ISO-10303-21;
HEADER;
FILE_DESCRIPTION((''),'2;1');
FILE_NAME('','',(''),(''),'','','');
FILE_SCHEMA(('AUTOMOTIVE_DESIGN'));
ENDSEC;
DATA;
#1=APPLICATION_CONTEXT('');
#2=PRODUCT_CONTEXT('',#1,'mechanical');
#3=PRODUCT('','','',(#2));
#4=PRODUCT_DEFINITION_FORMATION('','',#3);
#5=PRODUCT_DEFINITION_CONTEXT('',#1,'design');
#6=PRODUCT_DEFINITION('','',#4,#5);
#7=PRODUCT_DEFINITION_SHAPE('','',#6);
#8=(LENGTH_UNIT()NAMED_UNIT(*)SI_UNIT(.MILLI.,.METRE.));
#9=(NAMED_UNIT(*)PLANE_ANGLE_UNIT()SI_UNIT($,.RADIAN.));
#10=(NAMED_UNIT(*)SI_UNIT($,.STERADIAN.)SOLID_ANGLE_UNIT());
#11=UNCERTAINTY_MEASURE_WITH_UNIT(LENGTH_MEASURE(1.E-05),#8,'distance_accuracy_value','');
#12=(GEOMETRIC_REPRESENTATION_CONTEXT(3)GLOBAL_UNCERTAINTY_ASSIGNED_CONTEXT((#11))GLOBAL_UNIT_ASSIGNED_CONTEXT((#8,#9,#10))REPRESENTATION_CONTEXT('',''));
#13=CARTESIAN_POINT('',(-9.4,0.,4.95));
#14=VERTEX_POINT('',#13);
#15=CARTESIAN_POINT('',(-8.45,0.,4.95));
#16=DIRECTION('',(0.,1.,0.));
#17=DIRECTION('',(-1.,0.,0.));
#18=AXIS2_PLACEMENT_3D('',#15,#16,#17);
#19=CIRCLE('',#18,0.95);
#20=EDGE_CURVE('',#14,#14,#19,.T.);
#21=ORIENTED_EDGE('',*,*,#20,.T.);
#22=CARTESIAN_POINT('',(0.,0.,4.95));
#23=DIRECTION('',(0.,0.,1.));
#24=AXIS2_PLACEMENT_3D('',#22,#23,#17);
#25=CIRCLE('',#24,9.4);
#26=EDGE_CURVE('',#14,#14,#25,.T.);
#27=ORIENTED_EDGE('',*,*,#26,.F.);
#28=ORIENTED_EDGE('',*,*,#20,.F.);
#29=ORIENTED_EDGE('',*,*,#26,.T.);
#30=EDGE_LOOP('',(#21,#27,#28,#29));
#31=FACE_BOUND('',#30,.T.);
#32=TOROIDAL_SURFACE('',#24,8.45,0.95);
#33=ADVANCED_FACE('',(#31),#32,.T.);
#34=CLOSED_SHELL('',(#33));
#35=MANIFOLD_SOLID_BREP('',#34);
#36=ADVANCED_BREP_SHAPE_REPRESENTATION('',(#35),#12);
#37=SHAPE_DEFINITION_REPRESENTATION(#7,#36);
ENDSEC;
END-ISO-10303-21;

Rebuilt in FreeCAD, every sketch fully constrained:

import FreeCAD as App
import Part
import Sketcher
from FreeCAD import Vector
Q = App.Units.Quantity

doc = App.newDocument("Part")
body = doc.addObject("PartDesign::Body", "Body")

sketch1 = body.newObject("Sketcher::SketchObject", "Sketch")
sketch1.AttachmentSupport = (doc.getObject("XZ_Plane"), [""])
sketch1.MapMode = "FlatFace"
sketch1.addGeometry(Part.Circle(Vector(-8.4, 5, 0), Vector(0, 0, 1), 0.9), False)
sketch1.addConstraint(Sketcher.Constraint("Diameter", 0, Q("1.9 mm")))
sketch1.addConstraint(Sketcher.Constraint("DistanceX", 0, 3, -1, 1, Q("8.45 mm")))
sketch1.addConstraint(Sketcher.Constraint("DistanceY", -1, 1, 0, 3, Q("4.95 mm")))
revolution = body.newObject("PartDesign::Revolution", "Revolution")
revolution.Profile = sketch1
revolution.ReferenceAxis = (sketch1, ["V_Axis"])
revolution.Angle = 360

doc.recompute()
